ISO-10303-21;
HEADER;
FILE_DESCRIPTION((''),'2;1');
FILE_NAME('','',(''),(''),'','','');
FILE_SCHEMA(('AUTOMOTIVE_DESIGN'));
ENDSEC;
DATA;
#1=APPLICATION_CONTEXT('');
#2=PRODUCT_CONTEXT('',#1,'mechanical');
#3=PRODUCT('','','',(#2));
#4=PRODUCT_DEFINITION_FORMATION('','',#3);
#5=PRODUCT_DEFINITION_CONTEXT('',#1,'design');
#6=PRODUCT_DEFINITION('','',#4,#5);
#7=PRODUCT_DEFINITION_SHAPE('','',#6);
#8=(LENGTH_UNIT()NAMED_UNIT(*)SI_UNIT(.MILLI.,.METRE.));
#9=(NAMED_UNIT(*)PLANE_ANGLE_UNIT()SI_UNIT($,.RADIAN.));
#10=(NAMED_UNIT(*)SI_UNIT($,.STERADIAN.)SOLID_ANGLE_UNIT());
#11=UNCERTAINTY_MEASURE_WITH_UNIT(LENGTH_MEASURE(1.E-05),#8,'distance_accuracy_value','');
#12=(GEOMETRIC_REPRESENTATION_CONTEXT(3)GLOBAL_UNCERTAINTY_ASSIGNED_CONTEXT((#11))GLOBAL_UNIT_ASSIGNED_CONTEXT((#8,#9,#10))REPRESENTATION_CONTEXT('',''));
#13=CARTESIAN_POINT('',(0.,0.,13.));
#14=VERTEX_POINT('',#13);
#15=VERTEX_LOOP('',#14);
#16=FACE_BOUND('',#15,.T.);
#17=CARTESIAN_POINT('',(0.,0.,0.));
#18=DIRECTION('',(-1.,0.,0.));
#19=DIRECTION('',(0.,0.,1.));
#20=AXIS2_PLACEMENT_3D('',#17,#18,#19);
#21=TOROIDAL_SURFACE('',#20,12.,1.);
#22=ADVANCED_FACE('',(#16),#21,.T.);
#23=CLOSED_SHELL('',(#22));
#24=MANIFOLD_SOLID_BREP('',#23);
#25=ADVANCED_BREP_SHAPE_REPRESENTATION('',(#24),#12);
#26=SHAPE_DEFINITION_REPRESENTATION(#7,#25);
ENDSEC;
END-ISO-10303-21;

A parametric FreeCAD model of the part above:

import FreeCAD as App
import Part
import Sketcher

doc = App.newDocument("Part")
params = doc.addObject("Spreadsheet::Sheet", "Params")
for row, (alias, value) in enumerate([
    ("sketch1_diameter", "2 mm"),
    ("revolution_angle", "360 deg"),
], start=1):
    params.set(f"A{row}", alias)
    params.set(f"B{row}", "=" + value)
    params.setAlias(f"B{row}", alias)

body = doc.addObject("PartDesign::Body", "Body")

# Sketch on XY plane
sketch1 = doc.addObject("Sketcher::SketchObject", "Sketch")
body.addObject(sketch1)
sketch1.AttachmentSupport = (doc.XY_Plane, [""])
sketch1.MapMode = "FlatFace"
sketch1.addGeometry(Part.Circle(App.Vector(0, 12, 0), App.Vector(0, 0, 1), 1), False)
sketch1.addConstraint([
    Sketcher.Constraint("PointOnObject", 0, 3, -2),
    Sketcher.Constraint("Diameter", 0, 2.0),
    Sketcher.Constraint("DistanceY", -1, 1, 0, 3, 12.0),
])
sketch1.setExpression("Constraints[1]", "Params.sketch1_diameter")
revolution = doc.addObject("PartDesign::Revolution", "Revolution")
body.addObject(revolution)
revolution.Profile = sketch1
revolution.ReferenceAxis = (sketch1, ["H_Axis"])
revolution.setExpression("Angle", "Params.revolution_angle")

doc.recompute()
